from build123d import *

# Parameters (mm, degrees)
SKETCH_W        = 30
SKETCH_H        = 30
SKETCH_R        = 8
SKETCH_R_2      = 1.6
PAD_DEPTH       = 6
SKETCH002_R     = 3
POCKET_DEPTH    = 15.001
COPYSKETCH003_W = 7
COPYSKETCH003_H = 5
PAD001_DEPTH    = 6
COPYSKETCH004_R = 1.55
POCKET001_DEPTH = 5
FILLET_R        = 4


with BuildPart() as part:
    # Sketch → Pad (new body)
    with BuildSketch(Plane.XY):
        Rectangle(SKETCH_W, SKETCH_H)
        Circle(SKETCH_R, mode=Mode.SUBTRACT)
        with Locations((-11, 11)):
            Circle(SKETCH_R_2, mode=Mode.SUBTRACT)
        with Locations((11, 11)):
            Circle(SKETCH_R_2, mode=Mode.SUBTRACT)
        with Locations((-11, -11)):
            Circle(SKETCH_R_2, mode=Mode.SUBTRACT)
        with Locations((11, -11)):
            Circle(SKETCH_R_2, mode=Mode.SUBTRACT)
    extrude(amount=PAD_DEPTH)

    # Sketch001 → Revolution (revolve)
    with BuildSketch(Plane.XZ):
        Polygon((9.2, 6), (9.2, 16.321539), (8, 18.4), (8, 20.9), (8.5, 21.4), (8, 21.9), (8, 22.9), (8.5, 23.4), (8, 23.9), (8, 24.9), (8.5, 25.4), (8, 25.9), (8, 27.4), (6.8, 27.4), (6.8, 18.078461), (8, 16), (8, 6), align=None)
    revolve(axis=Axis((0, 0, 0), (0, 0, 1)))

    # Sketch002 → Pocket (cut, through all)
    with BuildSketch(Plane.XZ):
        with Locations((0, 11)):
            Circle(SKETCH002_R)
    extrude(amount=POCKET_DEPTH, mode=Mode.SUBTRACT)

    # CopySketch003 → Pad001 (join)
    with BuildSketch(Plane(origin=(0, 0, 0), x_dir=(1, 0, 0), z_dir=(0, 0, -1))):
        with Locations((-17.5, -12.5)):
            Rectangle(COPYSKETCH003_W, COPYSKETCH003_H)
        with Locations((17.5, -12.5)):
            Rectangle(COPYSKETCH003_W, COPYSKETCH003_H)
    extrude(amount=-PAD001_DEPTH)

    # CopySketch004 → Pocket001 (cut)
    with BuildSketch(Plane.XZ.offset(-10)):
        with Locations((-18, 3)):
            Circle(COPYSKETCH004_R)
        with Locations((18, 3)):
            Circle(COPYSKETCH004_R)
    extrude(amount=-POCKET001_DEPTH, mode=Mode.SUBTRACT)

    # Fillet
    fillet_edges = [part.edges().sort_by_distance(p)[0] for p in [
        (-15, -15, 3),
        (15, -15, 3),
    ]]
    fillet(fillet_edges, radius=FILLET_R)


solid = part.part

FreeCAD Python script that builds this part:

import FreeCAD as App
import Part
import Sketcher
from FreeCAD import Vector
Q = App.Units.Quantity


def edges_at(feature, points):
    """Names of the edges that pass closest to the given points."""
    edges = feature.Shape.Edges
    near = lambda p: min(range(len(edges)), key=lambda i: edges[i].distToShape(Part.Vertex(*p))[0])
    return sorted({f"Edge{near(p) + 1}" for p in points})


def add_polygon(sketch, points):
    """Adds a closed chain of lines whose ends are joined by coincident constraints."""
    first, n = sketch.GeometryCount, len(points)
    for a, b in zip(points, points[1:] + points[:1]):
        sketch.addGeometry(Part.LineSegment(App.Vector(*a, 0), App.Vector(*b, 0)), False)
    for i in range(n):
        sketch.addConstraint(Sketcher.Constraint("Coincident", first + i, 2, first + (i + 1) % n, 1))

doc = App.newDocument("Part")
body = doc.addObject("PartDesign::Body", "Body")

# Sketch on XY plane
sketch1 = body.newObject("Sketcher::SketchObject", "Sketch")
sketch1.AttachmentSupport = (doc.getObject("XY_Plane"), [""])
sketch1.MapMode = "FlatFace"
add_polygon(sketch1, [(-15, 15), (-15, -15), (15, -15), (15, 15)])  # lines 0-3
sketch1.addGeometry(Part.Circle(Vector(-11, -11, 0), Vector(0, 0, 1), 1.6), False)  # 4
sketch1.addGeometry(Part.Circle(Vector(0, 0, 0), Vector(0, 0, 1), 8), False)  # 5
sketch1.addGeometry(Part.Circle(Vector(11, -11, 0), Vector(0, 0, 1), 1.6), False)  # 6
sketch1.addGeometry(Part.Circle(Vector(-11, 11, 0), Vector(0, 0, 1), 1.6), False)  # 7
sketch1.addGeometry(Part.Circle(Vector(11, 11, 0), Vector(0, 0, 1), 1.6), False)  # 8
sketch1.addConstraint([
    Sketcher.Constraint("Vertical", 0),
    Sketcher.Constraint("Horizontal", 1),
    Sketcher.Constraint("Vertical", 2),
    Sketcher.Constraint("Horizontal", 3),
    Sketcher.Constraint("Coincident", 5, 3, -1, 1),
    Sketcher.Constraint("Equal", 4, 6),
    Sketcher.Constraint("Equal", 6, 7),
    Sketcher.Constraint("Equal", 7, 8),
    Sketcher.Constraint("Symmetric", 6, 3, 7, 3, -1, 1),
    Sketcher.Constraint("Symmetric", 4, 3, 8, 3, -1, 1),
    Sketcher.Constraint("Symmetric", 0, 2, 2, 2, -1, 1),
    Sketcher.Constraint("Symmetric", 4, 3, 6, 3, -2),
    Sketcher.Constraint("Equal", 3, 0),
    Sketcher.Constraint("Diameter", 5, 16.0),
    Sketcher.Constraint("Diameter", 4, 3.2),
    Sketcher.Constraint("DistanceX", 1, 1, 1, 2, 30.0),
    Sketcher.Constraint("DistanceX", 4, 3, -1, 1, 11.0),
    Sketcher.Constraint("DistanceY", 4, 3, -1, 1, 11.0),
])
pad1 = body.newObject("PartDesign::Pad", "Pad")
pad1.Profile = sketch1
pad1.Length = 6

# Sketch on XZ plane
sketch2 = body.newObject("Sketcher::SketchObject", "Sketch001")
sketch2.AttachmentSupport = (doc.getObject("XZ_Plane"), [""])
sketch2.MapMode = "FlatFace"
add_polygon(sketch2, [(9.2, 6), (9.2, 16.321539), (8, 18.4), (8, 20.9), (8.5, 21.4), (8, 21.9), (8, 22.9), (8.5, 23.4), (8, 23.9), (8, 24.9), (8.5, 25.4), (8, 25.9), (8, 27.4), (6.8, 27.4), (6.8, 18.078461), (8, 16), (8, 6)])  # lines 0-16
sketch2.addConstraint([
    Sketcher.Constraint("Vertical", 0),
    Sketcher.Constraint("Vertical", 2),
    Sketcher.Constraint("Vertical", 5),
    Sketcher.Constraint("Vertical", 8),
    Sketcher.Constraint("Vertical", 11),
    Sketcher.Constraint("Horizontal", 12),
    Sketcher.Constraint("Vertical", 13),
    Sketcher.Constraint("Vertical", 15),
    Sketcher.Constraint("Horizontal", 16),
    Sketcher.Constraint("Perpendicular", 3, 4),
    Sketcher.Constraint("Perpendicular", 4, 6),
    Sketcher.Constraint("Perpendicular", 6, 7),
    Sketcher.Constraint("Perpendicular", 7, 9),
    Sketcher.Constraint("Perpendicular", 9, 10),
    Sketcher.Constraint("Parallel", 1, 14),
    Sketcher.Constraint("Vertical", 2, 2, 4, 2),
    Sketcher.Constraint("Vertical", 3, 2, 6, 2),
    Sketcher.Constraint("Vertical", 5, 2, 7, 2),
    Sketcher.Constraint("Vertical", 6, 2, 9, 2),
    Sketcher.Constraint("Vertical", 8, 2, 10, 2),
    Sketcher.Constraint("Vertical", 11, 2, 14, 2),
    Sketcher.Constraint("Equal", 12, 16),
    Sketcher.Constraint("Equal", 5, 8),
    Sketcher.Constraint("Equal", 3, 4),
    Sketcher.Constraint("DistanceY", 5, 1, 5, 2, 1.0),
    Sketcher.Constraint("DistanceY", 15, 2, 15, 1, 10.0),
    Sketcher.Constraint("Angle", 1, Q("120 deg")),
    Sketcher.Constraint("DistanceX", 12, 2, 12, 1, 1.2),
    Sketcher.Constraint("DistanceY", 2, 1, 2, 2, 2.5),
    Sketcher.Constraint("DistanceY", 11, 1, 11, 2, 1.5),
    Sketcher.Constraint("DistanceX", -1, 1, 1, 2, 8.0),
    Sketcher.Constraint("DistanceY", -1, 1, 14, 2, 16.0),
    Sketcher.Constraint("DistanceY", 1, 2, 3, 2, 3.0),
    Sketcher.Constraint("DistanceY", -1, 1, 1, 2, 18.4),
])
revolution = body.newObject("PartDesign::Revolution", "Revolution")
revolution.Profile = sketch2
revolution.ReferenceAxis = (sketch2, ["V_Axis"])
revolution.Angle = 360

# Sketch on XZ plane
sketch3 = body.newObject("Sketcher::SketchObject", "Sketch002")
sketch3.AttachmentSupport = (doc.getObject("XZ_Plane"), [""])
sketch3.MapMode = "FlatFace"
sketch3.addGeometry(Part.Circle(Vector(0, 11, 0), Vector(0, 0, 1), 3), False)
sketch3.addConstraint([
    Sketcher.Constraint("PointOnObject", 0, 3, -2),
    Sketcher.Constraint("Diameter", 0, 6.0),
    Sketcher.Constraint("DistanceY", -1, 1, 0, 3, 11.0),
])
pocket1 = body.newObject("PartDesign::Pocket", "Pocket")
pocket1.Profile = sketch3
pocket1.Type = "ThroughAll"
pocket1.Reversed = True

# Sketch on XY plane
sketch4 = body.newObject("Sketcher::SketchObject", "Sketch003")
sketch4.AttachmentSupport = (doc.getObject("XY_Plane"), [""])
sketch4.MapMode = "FlatFace"
add_polygon(sketch4, [(-21, 10), (-21, 15), (-14, 15), (-14, 10)])  # lines 0-3
add_polygon(sketch4, [(14, 10), (14, 15), (21, 15), (21, 10)])  # lines 4-7
sketch4.addConstraint([
    Sketcher.Constraint("Vertical", 0),
    Sketcher.Constraint("Horizontal", 1),
    Sketcher.Constraint("Vertical", 2),
    Sketcher.Constraint("Horizontal", 3),
    Sketcher.Constraint("Vertical", 4),
    Sketcher.Constraint("Horizontal", 5),
    Sketcher.Constraint("Vertical", 6),
    Sketcher.Constraint("Horizontal", 7),
    Sketcher.Constraint("Symmetric", 1, 2, 4, 2, -2),
    Sketcher.Constraint("Symmetric", 3, 2, 6, 2, -2),
    Sketcher.Constraint("DistanceX", 1, 1, 1, 2, 7.0),
    Sketcher.Constraint("DistanceY", 0, 1, 0, 2, 5.0),
    Sketcher.Constraint("DistanceX", 0, 2, -1, 1, 21.0),
    Sketcher.Constraint("DistanceY", -1, 1, 0, 2, 15.0),
])
pad2 = body.newObject("PartDesign::Pad", "Pad001")
pad2.Profile = sketch4
pad2.Length = 6

# Sketch on XZ plane
sketch5 = body.newObject("Sketcher::SketchObject", "Sketch004")
sketch5.AttachmentSupport = (doc.getObject("XZ_Plane"), [""])
sketch5.MapMode = "FlatFace"
sketch5.AttachmentOffset = App.Placement(Vector(0, 0, -10), App.Rotation())
sketch5.addGeometry([
    Part.Circle(Vector(-18, 3, 0), Vector(0, 0, 1), 1.55),
    Part.Circle(Vector(18, 3, 0), Vector(0, 0, 1), 1.55),
], False)
sketch5.addConstraint([
    Sketcher.Constraint("Equal", 0, 1),
    Sketcher.Constraint("Symmetric", 0, 3, 1, 3, -2),
    Sketcher.Constraint("Diameter", 0, 3.1),
    Sketcher.Constraint("DistanceX", 0, 3, -1, 1, 18.0),
    Sketcher.Constraint("DistanceY", -1, 1, 0, 3, 3.0),
])
pocket2 = body.newObject("PartDesign::Pocket", "Pocket001")
pocket2.Profile = sketch5
pocket2.Length = 5
doc.recompute()

fillet = body.newObject("PartDesign::Fillet", "Fillet")
fillet.Base = (pocket2, edges_at(pocket2, [(-15, -15, 3), (15, -15, 3)]))
fillet.Radius = 4

doc.recompute()
